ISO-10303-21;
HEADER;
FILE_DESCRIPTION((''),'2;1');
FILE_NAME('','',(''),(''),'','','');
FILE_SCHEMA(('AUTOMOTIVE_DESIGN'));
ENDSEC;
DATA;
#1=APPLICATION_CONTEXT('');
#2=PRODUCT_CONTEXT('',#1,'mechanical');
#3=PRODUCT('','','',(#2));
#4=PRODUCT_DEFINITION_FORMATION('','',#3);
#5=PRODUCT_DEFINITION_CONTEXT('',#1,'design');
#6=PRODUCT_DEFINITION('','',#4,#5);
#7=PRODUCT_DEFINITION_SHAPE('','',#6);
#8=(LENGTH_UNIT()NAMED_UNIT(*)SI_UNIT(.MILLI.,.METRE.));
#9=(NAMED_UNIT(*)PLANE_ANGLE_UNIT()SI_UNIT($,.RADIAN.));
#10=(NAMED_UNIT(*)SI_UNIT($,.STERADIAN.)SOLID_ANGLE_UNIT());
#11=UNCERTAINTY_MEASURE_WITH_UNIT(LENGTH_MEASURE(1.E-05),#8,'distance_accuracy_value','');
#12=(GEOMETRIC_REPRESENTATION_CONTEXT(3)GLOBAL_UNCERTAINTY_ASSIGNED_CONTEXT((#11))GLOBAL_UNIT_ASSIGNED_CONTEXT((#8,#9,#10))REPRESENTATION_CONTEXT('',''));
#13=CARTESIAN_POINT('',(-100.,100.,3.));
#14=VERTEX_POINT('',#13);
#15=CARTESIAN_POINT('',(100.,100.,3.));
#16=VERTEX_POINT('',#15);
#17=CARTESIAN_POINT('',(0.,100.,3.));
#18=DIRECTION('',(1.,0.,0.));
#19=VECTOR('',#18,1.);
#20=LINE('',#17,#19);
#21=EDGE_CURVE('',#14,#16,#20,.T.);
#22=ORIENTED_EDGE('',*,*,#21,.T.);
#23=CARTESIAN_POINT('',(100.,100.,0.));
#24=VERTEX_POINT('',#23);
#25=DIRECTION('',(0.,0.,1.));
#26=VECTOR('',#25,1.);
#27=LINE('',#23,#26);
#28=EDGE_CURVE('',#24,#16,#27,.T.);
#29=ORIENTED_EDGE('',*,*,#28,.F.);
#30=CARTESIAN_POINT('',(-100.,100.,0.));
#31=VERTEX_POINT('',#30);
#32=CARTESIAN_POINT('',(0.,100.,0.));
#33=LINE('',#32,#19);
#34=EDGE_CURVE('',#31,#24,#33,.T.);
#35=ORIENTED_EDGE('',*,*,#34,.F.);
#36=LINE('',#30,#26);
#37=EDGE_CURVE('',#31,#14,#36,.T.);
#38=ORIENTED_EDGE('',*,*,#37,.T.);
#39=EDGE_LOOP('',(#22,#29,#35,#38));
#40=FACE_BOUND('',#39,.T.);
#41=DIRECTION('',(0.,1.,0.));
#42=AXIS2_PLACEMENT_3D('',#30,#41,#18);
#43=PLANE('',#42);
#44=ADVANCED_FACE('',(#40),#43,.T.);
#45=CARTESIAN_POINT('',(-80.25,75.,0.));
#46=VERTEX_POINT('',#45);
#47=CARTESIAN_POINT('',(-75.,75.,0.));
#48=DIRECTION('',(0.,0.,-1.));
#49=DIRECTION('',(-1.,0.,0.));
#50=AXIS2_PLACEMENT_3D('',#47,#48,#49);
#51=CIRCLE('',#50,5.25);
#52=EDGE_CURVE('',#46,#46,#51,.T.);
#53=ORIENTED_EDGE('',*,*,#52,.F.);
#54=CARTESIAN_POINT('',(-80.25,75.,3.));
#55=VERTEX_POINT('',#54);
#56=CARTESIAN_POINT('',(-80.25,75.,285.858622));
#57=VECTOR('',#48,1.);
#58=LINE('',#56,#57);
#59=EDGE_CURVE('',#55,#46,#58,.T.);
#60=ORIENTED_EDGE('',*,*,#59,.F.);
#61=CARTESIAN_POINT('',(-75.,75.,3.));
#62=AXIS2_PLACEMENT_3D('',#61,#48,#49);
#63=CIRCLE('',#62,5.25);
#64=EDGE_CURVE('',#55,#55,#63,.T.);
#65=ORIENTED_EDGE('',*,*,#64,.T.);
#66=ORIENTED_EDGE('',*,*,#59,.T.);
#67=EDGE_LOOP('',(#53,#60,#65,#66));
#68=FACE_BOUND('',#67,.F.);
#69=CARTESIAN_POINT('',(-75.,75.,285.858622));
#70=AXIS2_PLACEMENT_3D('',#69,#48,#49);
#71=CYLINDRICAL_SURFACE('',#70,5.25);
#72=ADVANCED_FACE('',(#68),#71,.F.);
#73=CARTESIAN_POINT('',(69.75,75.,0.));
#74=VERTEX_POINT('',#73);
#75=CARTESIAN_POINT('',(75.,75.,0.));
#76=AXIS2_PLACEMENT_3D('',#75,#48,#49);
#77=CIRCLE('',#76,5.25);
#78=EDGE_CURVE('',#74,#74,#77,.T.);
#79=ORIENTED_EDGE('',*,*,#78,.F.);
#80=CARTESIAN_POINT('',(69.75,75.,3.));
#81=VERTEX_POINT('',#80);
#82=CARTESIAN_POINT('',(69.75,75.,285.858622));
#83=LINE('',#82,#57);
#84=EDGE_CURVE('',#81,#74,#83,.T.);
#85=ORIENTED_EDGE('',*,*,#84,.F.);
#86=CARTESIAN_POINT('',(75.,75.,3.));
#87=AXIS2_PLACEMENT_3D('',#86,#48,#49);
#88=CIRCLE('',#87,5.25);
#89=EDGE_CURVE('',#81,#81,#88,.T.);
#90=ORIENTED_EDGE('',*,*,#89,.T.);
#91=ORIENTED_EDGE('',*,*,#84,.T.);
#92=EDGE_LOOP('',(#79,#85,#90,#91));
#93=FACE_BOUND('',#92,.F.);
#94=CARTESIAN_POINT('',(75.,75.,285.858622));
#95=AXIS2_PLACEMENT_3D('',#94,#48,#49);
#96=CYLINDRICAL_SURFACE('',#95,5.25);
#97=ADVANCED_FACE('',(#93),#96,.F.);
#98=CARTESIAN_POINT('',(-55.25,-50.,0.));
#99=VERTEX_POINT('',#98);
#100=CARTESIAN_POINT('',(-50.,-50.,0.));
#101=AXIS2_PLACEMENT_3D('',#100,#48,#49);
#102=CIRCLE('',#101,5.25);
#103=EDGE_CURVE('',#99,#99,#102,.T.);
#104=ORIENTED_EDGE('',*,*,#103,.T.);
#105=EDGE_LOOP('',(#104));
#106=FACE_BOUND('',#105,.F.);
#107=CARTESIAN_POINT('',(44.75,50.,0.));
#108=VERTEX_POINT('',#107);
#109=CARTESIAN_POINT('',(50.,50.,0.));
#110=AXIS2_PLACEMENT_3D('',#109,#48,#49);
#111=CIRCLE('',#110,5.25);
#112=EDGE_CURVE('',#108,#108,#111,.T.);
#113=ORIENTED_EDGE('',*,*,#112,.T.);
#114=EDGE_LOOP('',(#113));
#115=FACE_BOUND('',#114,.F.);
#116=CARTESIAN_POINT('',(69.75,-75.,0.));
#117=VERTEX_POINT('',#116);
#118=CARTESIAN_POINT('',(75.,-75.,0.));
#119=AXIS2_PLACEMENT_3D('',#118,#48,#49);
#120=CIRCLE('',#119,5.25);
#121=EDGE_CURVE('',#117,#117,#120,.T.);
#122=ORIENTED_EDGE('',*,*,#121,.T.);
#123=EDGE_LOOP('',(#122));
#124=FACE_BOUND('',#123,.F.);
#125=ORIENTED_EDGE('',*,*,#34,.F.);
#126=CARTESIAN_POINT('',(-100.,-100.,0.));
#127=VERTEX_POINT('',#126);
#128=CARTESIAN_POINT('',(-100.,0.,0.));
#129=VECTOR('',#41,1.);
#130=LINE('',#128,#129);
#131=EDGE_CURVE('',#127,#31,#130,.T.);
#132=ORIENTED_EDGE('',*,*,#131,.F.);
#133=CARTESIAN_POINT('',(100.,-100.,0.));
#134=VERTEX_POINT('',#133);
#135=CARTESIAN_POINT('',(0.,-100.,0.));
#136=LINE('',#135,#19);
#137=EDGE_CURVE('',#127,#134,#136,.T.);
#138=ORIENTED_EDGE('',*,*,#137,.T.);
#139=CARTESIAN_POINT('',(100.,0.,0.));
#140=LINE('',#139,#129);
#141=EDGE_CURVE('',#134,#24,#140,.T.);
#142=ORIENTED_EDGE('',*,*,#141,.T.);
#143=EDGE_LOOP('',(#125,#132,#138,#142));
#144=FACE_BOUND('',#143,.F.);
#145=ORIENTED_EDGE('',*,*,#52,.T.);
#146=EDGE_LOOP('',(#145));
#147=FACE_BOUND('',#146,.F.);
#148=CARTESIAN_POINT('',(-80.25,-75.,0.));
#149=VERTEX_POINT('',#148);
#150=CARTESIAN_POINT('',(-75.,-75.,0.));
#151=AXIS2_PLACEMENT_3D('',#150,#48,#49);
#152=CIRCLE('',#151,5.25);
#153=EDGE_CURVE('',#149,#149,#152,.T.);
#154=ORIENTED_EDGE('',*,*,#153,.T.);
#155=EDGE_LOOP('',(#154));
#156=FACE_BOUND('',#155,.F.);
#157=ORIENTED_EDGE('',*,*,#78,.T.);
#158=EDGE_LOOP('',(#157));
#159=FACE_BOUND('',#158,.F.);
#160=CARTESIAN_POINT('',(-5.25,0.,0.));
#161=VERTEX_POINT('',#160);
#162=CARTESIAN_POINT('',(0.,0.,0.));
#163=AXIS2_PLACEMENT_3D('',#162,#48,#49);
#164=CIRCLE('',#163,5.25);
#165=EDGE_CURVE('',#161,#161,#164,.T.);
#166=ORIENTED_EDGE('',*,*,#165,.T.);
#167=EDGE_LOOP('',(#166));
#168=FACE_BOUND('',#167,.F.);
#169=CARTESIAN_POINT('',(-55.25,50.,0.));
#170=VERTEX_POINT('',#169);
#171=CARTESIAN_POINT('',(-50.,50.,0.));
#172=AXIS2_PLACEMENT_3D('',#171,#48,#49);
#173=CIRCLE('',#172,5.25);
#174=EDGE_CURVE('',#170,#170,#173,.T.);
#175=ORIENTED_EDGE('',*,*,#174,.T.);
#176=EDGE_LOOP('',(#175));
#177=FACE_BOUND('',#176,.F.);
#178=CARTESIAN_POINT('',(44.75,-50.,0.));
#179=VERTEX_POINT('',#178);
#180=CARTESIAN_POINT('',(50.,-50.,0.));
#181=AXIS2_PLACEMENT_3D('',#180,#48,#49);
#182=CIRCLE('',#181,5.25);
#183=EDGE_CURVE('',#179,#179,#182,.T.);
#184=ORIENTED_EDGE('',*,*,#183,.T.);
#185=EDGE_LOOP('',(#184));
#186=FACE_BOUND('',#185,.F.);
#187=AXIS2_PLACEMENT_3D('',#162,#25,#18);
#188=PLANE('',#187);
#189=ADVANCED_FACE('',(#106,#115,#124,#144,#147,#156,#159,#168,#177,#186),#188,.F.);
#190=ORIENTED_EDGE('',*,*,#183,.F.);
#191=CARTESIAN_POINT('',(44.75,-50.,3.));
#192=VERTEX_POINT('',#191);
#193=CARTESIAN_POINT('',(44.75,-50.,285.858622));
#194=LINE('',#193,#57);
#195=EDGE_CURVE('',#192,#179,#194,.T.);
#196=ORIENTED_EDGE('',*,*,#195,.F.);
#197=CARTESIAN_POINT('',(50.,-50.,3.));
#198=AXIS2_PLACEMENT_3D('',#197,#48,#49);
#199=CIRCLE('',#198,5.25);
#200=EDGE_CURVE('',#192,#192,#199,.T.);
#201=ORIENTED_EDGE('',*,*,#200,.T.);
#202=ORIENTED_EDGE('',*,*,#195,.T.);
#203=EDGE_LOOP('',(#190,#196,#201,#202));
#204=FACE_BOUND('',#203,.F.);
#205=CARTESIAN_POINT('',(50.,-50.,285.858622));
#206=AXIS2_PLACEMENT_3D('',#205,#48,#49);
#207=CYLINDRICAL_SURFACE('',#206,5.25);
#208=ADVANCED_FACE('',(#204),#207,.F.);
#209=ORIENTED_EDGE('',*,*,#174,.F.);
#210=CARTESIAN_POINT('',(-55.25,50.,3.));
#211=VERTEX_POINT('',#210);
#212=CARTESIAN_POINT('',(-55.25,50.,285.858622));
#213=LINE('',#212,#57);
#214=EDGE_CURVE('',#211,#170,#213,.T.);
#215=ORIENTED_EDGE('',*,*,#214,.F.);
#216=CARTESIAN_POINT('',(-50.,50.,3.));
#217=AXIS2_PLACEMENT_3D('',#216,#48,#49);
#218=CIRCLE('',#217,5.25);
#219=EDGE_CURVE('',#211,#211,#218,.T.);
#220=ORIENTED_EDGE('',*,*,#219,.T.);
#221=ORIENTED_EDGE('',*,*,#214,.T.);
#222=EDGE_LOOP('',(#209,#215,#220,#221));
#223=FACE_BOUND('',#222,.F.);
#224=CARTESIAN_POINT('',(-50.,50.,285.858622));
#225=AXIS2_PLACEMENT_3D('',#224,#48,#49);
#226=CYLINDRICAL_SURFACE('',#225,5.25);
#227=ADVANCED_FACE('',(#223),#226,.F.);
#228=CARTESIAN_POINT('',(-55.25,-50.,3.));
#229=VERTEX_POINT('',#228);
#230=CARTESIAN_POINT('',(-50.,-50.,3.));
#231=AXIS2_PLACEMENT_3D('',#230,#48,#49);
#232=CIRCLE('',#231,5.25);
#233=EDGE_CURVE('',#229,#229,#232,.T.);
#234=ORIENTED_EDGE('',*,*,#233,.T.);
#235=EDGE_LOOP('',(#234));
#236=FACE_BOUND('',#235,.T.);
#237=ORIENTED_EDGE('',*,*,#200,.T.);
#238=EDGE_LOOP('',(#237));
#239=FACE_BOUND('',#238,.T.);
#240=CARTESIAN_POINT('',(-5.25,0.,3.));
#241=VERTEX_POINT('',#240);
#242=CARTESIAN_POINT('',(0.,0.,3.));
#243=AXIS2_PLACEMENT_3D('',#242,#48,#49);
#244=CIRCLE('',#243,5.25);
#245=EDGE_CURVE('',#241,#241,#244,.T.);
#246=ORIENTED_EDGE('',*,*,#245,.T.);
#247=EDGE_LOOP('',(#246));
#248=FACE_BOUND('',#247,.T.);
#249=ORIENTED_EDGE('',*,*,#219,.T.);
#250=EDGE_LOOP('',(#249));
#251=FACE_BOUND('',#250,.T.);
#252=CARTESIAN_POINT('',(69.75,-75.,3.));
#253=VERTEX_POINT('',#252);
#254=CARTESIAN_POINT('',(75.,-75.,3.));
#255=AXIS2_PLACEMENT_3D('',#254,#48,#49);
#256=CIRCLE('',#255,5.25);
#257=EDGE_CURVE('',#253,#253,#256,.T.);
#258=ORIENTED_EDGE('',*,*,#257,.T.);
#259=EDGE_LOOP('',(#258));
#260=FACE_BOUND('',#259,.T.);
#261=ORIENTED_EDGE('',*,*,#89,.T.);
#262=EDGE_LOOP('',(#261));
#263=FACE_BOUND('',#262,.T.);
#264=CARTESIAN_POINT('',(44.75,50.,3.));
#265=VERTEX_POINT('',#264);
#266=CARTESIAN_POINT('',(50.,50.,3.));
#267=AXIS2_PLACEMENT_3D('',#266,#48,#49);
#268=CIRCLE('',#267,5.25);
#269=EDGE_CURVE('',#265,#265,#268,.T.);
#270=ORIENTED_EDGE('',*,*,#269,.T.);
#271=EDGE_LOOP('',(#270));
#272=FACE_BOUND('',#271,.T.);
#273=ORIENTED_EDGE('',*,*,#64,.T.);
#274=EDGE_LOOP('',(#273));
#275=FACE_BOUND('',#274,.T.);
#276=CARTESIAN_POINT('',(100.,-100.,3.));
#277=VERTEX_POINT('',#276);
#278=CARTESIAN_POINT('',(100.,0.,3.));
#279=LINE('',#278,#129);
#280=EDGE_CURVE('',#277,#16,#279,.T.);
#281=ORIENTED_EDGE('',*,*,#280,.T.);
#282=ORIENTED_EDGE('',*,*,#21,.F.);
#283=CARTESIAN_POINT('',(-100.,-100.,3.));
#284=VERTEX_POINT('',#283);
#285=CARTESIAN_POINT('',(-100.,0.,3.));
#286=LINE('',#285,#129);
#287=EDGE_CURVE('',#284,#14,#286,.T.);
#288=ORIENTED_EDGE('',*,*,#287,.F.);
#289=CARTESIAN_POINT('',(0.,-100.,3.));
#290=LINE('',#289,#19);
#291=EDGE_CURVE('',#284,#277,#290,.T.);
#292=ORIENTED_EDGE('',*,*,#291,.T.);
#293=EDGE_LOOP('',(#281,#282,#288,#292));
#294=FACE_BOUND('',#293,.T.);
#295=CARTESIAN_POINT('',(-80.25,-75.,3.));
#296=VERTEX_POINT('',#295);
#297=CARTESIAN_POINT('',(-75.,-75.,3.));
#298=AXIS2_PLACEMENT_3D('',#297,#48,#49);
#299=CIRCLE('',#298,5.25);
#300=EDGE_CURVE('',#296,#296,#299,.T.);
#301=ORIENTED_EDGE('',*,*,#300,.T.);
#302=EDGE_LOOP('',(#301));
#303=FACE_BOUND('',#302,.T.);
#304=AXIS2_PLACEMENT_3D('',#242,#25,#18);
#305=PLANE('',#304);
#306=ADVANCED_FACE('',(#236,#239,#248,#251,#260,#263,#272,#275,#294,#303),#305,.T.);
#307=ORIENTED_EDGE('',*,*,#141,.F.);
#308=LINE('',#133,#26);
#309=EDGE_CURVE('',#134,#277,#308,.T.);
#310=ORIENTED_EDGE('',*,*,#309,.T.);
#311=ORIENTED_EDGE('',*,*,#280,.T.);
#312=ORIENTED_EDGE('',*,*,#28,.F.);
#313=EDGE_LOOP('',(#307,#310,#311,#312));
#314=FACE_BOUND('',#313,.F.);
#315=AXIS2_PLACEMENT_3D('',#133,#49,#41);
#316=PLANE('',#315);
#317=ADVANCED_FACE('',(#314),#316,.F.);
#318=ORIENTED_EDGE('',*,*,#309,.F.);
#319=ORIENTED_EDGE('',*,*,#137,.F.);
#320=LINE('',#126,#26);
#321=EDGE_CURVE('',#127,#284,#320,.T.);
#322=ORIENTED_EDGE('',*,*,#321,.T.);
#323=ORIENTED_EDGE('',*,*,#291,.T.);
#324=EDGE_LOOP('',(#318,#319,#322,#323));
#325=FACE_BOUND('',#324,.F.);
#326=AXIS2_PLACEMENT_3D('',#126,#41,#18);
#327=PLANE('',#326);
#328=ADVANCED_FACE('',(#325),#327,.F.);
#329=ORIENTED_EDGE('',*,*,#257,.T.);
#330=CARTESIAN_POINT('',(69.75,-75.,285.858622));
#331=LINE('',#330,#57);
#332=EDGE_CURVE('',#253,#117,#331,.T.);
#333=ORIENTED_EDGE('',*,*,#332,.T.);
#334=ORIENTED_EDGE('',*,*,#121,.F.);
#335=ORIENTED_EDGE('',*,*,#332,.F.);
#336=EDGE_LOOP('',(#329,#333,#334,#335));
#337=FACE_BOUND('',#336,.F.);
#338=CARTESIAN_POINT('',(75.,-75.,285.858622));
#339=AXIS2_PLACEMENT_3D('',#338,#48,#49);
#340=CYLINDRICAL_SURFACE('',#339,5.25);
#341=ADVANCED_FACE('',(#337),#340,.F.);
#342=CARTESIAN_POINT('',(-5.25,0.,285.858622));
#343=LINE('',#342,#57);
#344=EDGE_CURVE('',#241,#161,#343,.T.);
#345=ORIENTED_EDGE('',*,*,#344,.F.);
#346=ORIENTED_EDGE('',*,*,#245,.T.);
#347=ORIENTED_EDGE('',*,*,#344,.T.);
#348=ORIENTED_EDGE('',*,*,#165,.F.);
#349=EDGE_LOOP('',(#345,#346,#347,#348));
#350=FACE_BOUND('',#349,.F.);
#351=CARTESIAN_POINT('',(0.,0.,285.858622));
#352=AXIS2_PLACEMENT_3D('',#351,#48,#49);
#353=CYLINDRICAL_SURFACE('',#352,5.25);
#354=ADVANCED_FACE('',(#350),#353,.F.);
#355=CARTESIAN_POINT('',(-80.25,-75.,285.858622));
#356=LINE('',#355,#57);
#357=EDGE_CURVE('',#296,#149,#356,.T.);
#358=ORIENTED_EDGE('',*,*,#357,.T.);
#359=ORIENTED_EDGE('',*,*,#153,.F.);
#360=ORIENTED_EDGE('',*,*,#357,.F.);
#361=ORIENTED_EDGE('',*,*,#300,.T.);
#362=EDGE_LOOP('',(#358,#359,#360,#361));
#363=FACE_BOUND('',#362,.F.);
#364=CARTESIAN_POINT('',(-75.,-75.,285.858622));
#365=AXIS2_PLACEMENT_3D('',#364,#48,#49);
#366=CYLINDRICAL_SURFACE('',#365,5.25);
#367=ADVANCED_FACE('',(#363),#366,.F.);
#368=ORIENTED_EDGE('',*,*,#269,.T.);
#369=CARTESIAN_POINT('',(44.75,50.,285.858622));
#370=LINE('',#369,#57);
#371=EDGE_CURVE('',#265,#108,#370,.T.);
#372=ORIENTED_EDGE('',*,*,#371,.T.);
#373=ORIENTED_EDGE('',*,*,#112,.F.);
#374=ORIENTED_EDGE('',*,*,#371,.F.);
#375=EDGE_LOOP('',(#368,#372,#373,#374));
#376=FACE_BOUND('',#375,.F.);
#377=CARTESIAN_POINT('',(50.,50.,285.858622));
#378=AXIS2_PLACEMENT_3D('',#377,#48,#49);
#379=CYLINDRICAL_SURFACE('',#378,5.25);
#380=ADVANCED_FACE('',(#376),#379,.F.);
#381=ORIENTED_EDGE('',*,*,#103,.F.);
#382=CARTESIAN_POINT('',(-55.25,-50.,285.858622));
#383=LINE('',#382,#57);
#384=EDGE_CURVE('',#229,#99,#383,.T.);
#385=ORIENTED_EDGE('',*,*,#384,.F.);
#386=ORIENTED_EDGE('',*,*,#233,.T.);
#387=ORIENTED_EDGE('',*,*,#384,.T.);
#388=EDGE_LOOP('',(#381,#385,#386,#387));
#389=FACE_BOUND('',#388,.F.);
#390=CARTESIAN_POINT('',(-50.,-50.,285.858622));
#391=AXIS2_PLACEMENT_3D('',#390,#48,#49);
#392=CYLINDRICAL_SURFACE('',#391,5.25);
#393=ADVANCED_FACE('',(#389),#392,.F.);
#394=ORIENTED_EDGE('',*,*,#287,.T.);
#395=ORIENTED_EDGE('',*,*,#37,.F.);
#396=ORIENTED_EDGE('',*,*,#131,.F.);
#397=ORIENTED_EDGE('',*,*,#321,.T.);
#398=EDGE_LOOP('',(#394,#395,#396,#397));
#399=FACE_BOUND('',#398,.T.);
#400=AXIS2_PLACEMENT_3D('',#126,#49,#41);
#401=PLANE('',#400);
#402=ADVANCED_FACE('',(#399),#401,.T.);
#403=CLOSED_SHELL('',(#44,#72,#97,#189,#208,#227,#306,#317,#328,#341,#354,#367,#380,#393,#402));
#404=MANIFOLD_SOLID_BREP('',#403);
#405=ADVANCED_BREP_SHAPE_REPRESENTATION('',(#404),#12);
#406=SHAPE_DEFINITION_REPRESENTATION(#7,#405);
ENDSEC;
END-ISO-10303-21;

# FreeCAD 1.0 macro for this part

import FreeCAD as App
import Part
import Sketcher

V = App.Vector


def add_polygon(sketch, points):
    """Adds a closed chain of lines whose ends are joined by coincident constraints."""
    first, n = sketch.GeometryCount, len(points)
    for a, b in zip(points, points[1:] + points[:1]):
        sketch.addGeometry(Part.LineSegment(App.Vector(*a, 0), App.Vector(*b, 0)), False)
    for i in range(n):
        sketch.addConstraint(Sketcher.Constraint("Coincident", first + i, 2, first + (i + 1) % n, 1))

doc = App.newDocument("Part")
body = doc.addObject("PartDesign::Body", "Body")

# Sketch on XY plane
sketch1 = body.newObject("Sketcher::SketchObject", "Sketch")
sketch1.AttachmentSupport = (doc.getObject("XY_Plane"), [""])
sketch1.MapMode = "FlatFace"
add_polygon(sketch1, [(-100, 100), (-100, -100), (100, -100), (100, 100)])  # lines 0-3
sketch1.addConstraint(Sketcher.Constraint("Vertical", 0))
sketch1.addConstraint(Sketcher.Constraint("Horizontal", 1))
sketch1.addConstraint(Sketcher.Constraint("Vertical", 2))
sketch1.addConstraint(Sketcher.Constraint("Horizontal", 3))
sketch1.addConstraint(Sketcher.Constraint("Symmetric", 0, 2, 2, 2, -1, 1))
sketch1.addConstraint(Sketcher.Constraint("Equal", 3, 0))
sketch1.addConstraint(Sketcher.Constraint("DistanceX", 1, 1, 1, 2, 200.0))
pad1 = body.newObject("PartDesign::Pad", "Pad")
pad1.Profile = sketch1
pad1.Length = 3

# Sketch on XY plane
sketch2 = body.newObject("Sketcher::SketchObject", "Sketch001")
sketch2.AttachmentSupport = (doc.getObject("XY_Plane"), [""])
sketch2.MapMode = "FlatFace"
sketch2.AttachmentOffset = App.Placement(V(0, 0, 3), App.Rotation())
sketch2.addGeometry(Part.Circle(V(75, 75, 0), V(0, 0, 1), 5), False)
sketch2.addGeometry(Part.Circle(V(50, 50, 0), V(0, 0, 1), 5), False)
sketch2.addGeometry(Part.Circle(V(-75, 75, 0), V(0, 0, 1), 5), False)
sketch2.addGeometry(Part.Circle(V(-50, 50, 0), V(0, 0, 1), 5), False)
sketch2.addGeometry(Part.Circle(V(-50, -50, 0), V(0, 0, 1), 5), False)
sketch2.addGeometry(Part.Circle(V(-75, -75, 0), V(0, 0, 1), 5), False)
sketch2.addGeometry(Part.Circle(V(50, -50, 0), V(0, 0, 1), 5), False)
sketch2.addGeometry(Part.Circle(V(75, -75, 0), V(0, 0, 1), 5), False)
sketch2.addGeometry(Part.Circle(V(0, 0, 0), V(0, 0, 1), 5), False)
sketch2.addConstraint(Sketcher.Constraint("Coincident", 8, 3, -1, 1))
sketch2.addConstraint(Sketcher.Constraint("Equal", 0, 1))
sketch2.addConstraint(Sketcher.Constraint("Equal", 1, 2))
sketch2.addConstraint(Sketcher.Constraint("Equal", 2, 3))
sketch2.addConstraint(Sketcher.Constraint("Equal", 3, 4))
sketch2.addConstraint(Sketcher.Constraint("Equal", 4, 5))
sketch2.addConstraint(Sketcher.Constraint("Equal", 5, 6))
sketch2.addConstraint(Sketcher.Constraint("Equal", 6, 7))
sketch2.addConstraint(Sketcher.Constraint("Equal", 7, 8))
sketch2.addConstraint(Sketcher.Constraint("Symmetric", 1, 3, 4, 3, -1, 1))
sketch2.addConstraint(Sketcher.Constraint("Symmetric", 0, 3, 5, 3, -1, 1))
sketch2.addConstraint(Sketcher.Constraint("Symmetric", 3, 3, 6, 3, -1, 1))
sketch2.addConstraint(Sketcher.Constraint("Symmetric", 2, 3, 7, 3, -1, 1))
sketch2.addConstraint(Sketcher.Constraint("Symmetric", 0, 3, 2, 3, -2))
sketch2.addConstraint(Sketcher.Constraint("Symmetric", 1, 3, 3, 3, -2))
sketch2.addConstraint(Sketcher.Constraint("Diameter", 0, 10.5))
sketch2.addConstraint(Sketcher.Constraint("DistanceX", -1, 1, 0, 3, 75.0))
sketch2.addConstraint(Sketcher.Constraint("DistanceY", -1, 1, 0, 3, 75.0))
sketch2.addConstraint(Sketcher.Constraint("DistanceX", -1, 1, 1, 3, 50.0))
sketch2.addConstraint(Sketcher.Constraint("DistanceY", -1, 1, 1, 3, 50.0))
doc.recompute()
hole = body.newObject("PartDesign::Hole", "Hole")
hole.Profile = sketch2
hole.ThreadType = "None"
hole.Diameter = 10.5
hole.DepthType = "ThroughAll"

doc.recompute()
